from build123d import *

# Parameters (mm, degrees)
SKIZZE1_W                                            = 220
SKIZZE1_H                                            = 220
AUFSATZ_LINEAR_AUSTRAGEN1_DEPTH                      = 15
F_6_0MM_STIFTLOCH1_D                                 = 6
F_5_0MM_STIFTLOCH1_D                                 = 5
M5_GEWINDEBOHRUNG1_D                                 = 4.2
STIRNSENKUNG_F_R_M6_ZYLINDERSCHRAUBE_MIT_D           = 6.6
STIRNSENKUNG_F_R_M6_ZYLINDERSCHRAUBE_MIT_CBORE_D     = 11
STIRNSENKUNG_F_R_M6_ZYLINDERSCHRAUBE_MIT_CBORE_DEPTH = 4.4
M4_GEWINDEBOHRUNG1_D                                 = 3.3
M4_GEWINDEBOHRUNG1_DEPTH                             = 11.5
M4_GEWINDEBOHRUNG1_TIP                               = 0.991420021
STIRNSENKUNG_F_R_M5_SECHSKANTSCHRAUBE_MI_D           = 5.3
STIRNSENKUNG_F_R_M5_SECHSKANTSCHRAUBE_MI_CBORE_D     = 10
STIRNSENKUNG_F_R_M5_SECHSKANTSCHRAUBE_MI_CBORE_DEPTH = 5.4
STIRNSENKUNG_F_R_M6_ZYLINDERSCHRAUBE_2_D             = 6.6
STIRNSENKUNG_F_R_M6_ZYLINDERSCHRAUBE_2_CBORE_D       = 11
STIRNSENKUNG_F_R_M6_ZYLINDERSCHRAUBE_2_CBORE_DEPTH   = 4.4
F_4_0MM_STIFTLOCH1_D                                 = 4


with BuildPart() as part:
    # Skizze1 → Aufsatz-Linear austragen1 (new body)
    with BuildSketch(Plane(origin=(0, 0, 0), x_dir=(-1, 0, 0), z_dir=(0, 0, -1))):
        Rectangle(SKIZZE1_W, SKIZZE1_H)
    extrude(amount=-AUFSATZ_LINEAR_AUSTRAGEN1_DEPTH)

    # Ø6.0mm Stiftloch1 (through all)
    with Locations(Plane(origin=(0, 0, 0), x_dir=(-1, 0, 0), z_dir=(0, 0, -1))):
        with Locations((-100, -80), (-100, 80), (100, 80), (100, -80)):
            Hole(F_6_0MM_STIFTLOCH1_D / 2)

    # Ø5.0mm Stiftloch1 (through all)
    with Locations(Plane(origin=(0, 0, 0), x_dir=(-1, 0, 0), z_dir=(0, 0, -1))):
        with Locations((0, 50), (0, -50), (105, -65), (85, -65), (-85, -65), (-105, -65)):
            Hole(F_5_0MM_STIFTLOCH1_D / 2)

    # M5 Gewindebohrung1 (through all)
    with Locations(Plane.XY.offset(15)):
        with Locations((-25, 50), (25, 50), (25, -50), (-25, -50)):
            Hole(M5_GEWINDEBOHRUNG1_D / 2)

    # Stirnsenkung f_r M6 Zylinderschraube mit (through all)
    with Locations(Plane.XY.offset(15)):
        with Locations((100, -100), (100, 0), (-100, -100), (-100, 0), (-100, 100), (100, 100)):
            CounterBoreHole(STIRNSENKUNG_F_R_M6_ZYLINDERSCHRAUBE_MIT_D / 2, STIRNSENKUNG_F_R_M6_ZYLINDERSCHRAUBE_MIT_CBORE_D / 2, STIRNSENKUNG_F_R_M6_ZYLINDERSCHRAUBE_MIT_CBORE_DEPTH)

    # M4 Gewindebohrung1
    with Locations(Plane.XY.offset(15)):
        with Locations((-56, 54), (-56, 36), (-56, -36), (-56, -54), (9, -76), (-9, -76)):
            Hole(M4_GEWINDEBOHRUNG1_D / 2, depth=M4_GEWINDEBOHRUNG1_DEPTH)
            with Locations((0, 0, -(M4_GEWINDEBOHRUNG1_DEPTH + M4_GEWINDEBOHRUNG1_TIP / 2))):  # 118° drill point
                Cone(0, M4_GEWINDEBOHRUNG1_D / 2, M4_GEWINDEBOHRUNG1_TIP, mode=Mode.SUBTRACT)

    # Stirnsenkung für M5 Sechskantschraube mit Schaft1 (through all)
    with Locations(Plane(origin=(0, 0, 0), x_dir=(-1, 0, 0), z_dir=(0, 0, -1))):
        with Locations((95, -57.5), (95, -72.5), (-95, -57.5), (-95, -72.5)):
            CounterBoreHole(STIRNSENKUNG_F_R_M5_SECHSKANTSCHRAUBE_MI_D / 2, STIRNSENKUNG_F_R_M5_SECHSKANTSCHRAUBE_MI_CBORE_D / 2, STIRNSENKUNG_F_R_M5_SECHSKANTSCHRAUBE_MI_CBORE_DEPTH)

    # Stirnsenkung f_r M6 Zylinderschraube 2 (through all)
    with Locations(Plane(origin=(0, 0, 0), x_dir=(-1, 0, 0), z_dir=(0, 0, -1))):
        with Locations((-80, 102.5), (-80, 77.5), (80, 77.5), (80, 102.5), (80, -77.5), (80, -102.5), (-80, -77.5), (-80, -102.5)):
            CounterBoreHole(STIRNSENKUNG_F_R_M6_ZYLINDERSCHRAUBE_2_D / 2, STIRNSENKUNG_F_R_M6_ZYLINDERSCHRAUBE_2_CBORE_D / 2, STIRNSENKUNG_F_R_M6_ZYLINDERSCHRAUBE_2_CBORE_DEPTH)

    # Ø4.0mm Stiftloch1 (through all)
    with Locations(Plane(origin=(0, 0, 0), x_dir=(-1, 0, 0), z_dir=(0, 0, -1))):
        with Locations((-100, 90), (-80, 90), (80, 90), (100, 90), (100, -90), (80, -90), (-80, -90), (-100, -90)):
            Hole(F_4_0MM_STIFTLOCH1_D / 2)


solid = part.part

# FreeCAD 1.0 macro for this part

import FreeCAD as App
import Part
import Sketcher
from FreeCAD import Vector


def add_polygon(sketch, points):
    """Adds a closed chain of lines whose ends are joined by coincident constraints."""
    first, n = sketch.GeometryCount, len(points)
    for a, b in zip(points, points[1:] + points[:1]):
        sketch.addGeometry(Part.LineSegment(App.Vector(*a, 0), App.Vector(*b, 0)), False)
    for i in range(n):
        sketch.addConstraint(Sketcher.Constraint("Coincident", first + i, 2, first + (i + 1) % n, 1))

doc = App.newDocument("Part")
params = doc.addObject("Spreadsheet::Sheet", "Params")
for row, (alias, value) in enumerate([
    ("sketch1_width", "220 mm"),
    ("pad1_length", "15 mm"),
    ("sketch2_diameter", "6 mm"),
    ("hole_diameter", "6 mm"),
    ("sketch3_diameter", "5 mm"),
    ("hole2_diameter", "5 mm"),
    ("sketch4_diameter", "4.2 mm"),
    ("hole3_diameter", "4.2 mm"),
    ("sketch5_diameter", "6.6 mm"),
    ("hole4_diameter", "6.6 mm"),
    ("hole4_cbore_diameter", "11 mm"),
    ("hole4_cbore_depth", "4.4 mm"),
    ("sketch6_diameter", "3.3 mm"),
    ("hole5_diameter", "3.3 mm"),
    ("hole5_depth", "11.5 mm"),
    ("sketch7_diameter", "5.3 mm"),
    ("hole6_diameter", "5.3 mm"),
    ("hole6_cbore_diameter", "10 mm"),
    ("hole6_cbore_depth", "5.4 mm"),
    ("sketch8_diameter", "6.6 mm"),
    ("hole7_diameter", "6.6 mm"),
    ("hole7_cbore_diameter", "11 mm"),
    ("hole7_cbore_depth", "4.4 mm"),
    ("sketch9_diameter", "4 mm"),
    ("hole8_diameter", "4 mm"),
], start=1):
    params.set(f"A{row}", alias)
    params.set(f"B{row}", "=" + value)
    params.setAlias(f"B{row}", alias)

body = doc.addObject("PartDesign::Body", "Body")

# Sketch on XY plane
sketch1 = body.newObject("Sketcher::SketchObject", "Sketch")
sketch1.AttachmentSupport = (doc.getObject("XY_Plane"), [""])
sketch1.MapMode = "FlatFace"
add_polygon(sketch1, [(110, 110), (110, -110), (-110, -110), (-110, 110)])  # lines 0-3
sketch1.addConstraint(Sketcher.Constraint("Vertical", 0))
sketch1.addConstraint(Sketcher.Constraint("Horizontal", 1))
sketch1.addConstraint(Sketcher.Constraint("Vertical", 2))
sketch1.addConstraint(Sketcher.Constraint("Horizontal", 3))
sketch1.addConstraint(Sketcher.Constraint("Symmetric", 0, 2, 2, 2, -1, 1))
sketch1.addConstraint(Sketcher.Constraint("Equal", 3, 0))
sketch1.addConstraint(Sketcher.Constraint("DistanceX", 1, 2, 1, 1, 220.0))
sketch1.setExpression("Constraints[10]", "Params.sketch1_width")
pad1 = body.newObject("PartDesign::Pad", "Pad")
pad1.Profile = sketch1
pad1.setExpression("Length", "Params.pad1_length")

# Sketch on XY plane
sketch2 = body.newObject("Sketcher::SketchObject", "Sketch001")
sketch2.AttachmentSupport = (doc.getObject("XY_Plane"), [""])
sketch2.MapMode = "FlatFace"
sketch2.addGeometry(Part.Circle(Vector(100, -80, 0), Vector(0, 0, 1), 3), False)
sketch2.addGeometry(Part.Circle(Vector(100, 80, 0), Vector(0, 0, 1), 3), False)
sketch2.addGeometry(Part.Circle(Vector(-100, 80, 0), Vector(0, 0, 1), 3), False)
sketch2.addGeometry(Part.Circle(Vector(-100, -80, 0), Vector(0, 0, 1), 3), False)
sketch2.addConstraint(Sketcher.Constraint("Equal", 0, 1))
sketch2.addConstraint(Sketcher.Constraint("Equal", 1, 2))
sketch2.addConstraint(Sketcher.Constraint("Equal", 2, 3))
sketch2.addConstraint(Sketcher.Constraint("Symmetric", 0, 3, 2, 3, -1, 1))
sketch2.addConstraint(Sketcher.Constraint("Symmetric", 1, 3, 3, 3, -1, 1))
sketch2.addConstraint(Sketcher.Constraint("Symmetric", 1, 3, 2, 3, -2))
sketch2.addConstraint(Sketcher.Constraint("Diameter", 0, 6.0))
sketch2.addConstraint(Sketcher.Constraint("DistanceX", -1, 1, 0, 3, 100.0))
sketch2.addConstraint(Sketcher.Constraint("DistanceY", 0, 3, -1, 1, 80.0))
sketch2.setExpression("Constraints[6]", "Params.sketch2_diameter")
doc.recompute()
hole = body.newObject("PartDesign::Hole", "Hole")
hole.Profile = sketch2
hole.ThreadType = "None"
hole.setExpression("Diameter", "Params.hole_diameter")
hole.DepthType = "ThroughAll"
hole.Reversed = True

# Sketch on XY plane
sketch3 = body.newObject("Sketcher::SketchObject", "Sketch002")
sketch3.AttachmentSupport = (doc.getObject("XY_Plane"), [""])
sketch3.MapMode = "FlatFace"
sketch3.addGeometry(Part.Circle(Vector(0, 50, 0), Vector(0, 0, 1), 2.5), False)
sketch3.addGeometry(Part.Circle(Vector(0, -50, 0), Vector(0, 0, 1), 2.5), False)
sketch3.addGeometry(Part.Circle(Vector(-105, -65, 0), Vector(0, 0, 1), 2.5), False)
sketch3.addGeometry(Part.Circle(Vector(-85, -65, 0), Vector(0, 0, 1), 2.5), False)
sketch3.addGeometry(Part.Circle(Vector(85, -65, 0), Vector(0, 0, 1), 2.5), False)
sketch3.addGeometry(Part.Circle(Vector(105, -65, 0), Vector(0, 0, 1), 2.5), False)
sketch3.addConstraint(Sketcher.Constraint("Equal", 0, 1))
sketch3.addConstraint(Sketcher.Constraint("Equal", 1, 2))
sketch3.addConstraint(Sketcher.Constraint("Equal", 2, 3))
sketch3.addConstraint(Sketcher.Constraint("Equal", 3, 4))
sketch3.addConstraint(Sketcher.Constraint("Equal", 4, 5))
sketch3.addConstraint(Sketcher.Constraint("Symmetric", 0, 3, 1, 3, -1, 1))
sketch3.addConstraint(Sketcher.Constraint("Symmetric", 3, 3, 4, 3, -2))
sketch3.addConstraint(Sketcher.Constraint("Symmetric", 2, 3, 5, 3, -2))
sketch3.addConstraint(Sketcher.Constraint("PointOnObject", 0, 3, -2))
sketch3.addConstraint(Sketcher.Constraint("Horizontal", 2, 3, 3, 3))
sketch3.addConstraint(Sketcher.Constraint("Diameter", 0, 5.0))
sketch3.addConstraint(Sketcher.Constraint("DistanceY", -1, 1, 0, 3, 50.0))
sketch3.addConstraint(Sketcher.Constraint("DistanceX", 2, 3, -1, 1, 105.0))
sketch3.addConstraint(Sketcher.Constraint("DistanceY", 2, 3, -1, 1, 65.0))
sketch3.addConstraint(Sketcher.Constraint("DistanceX", 3, 3, -1, 1, 85.0))
sketch3.setExpression("Constraints[10]", "Params.sketch3_diameter")
doc.recompute()
hole2 = body.newObject("PartDesign::Hole", "Hole001")
hole2.Profile = sketch3
hole2.ThreadType = "None"
hole2.setExpression("Diameter", "Params.hole2_diameter")
hole2.DepthType = "ThroughAll"
hole2.Reversed = True

# Sketch on XY plane
sketch4 = body.newObject("Sketcher::SketchObject", "Sketch003")
sketch4.AttachmentSupport = (doc.getObject("XY_Plane"), [""])
sketch4.MapMode = "FlatFace"
sketch4.AttachmentOffset = App.Placement(Vector(0, 0, 15), App.Rotation())
sketch4.addGeometry(Part.Circle(Vector(-25, 50, 0), Vector(0, 0, 1), 2.1), False)
sketch4.addGeometry(Part.Circle(Vector(25, 50, 0), Vector(0, 0, 1), 2.1), False)
sketch4.addGeometry(Part.Circle(Vector(25, -50, 0), Vector(0, 0, 1), 2.1), False)
sketch4.addGeometry(Part.Circle(Vector(-25, -50, 0), Vector(0, 0, 1), 2.1), False)
sketch4.addConstraint(Sketcher.Constraint("Equal", 0, 1))
sketch4.addConstraint(Sketcher.Constraint("Equal", 1, 2))
sketch4.addConstraint(Sketcher.Constraint("Equal", 2, 3))
sketch4.addConstraint(Sketcher.Constraint("Symmetric", 0, 3, 2, 3, -1, 1))
sketch4.addConstraint(Sketcher.Constraint("Symmetric", 1, 3, 3, 3, -1, 1))
sketch4.addConstraint(Sketcher.Constraint("Symmetric", 0, 3, 1, 3, -2))
sketch4.addConstraint(Sketcher.Constraint("Diameter", 0, 4.2))
sketch4.addConstraint(Sketcher.Constraint("DistanceX", 0, 3, -1, 1, 25.0))
sketch4.addConstraint(Sketcher.Constraint("DistanceY", -1, 1, 0, 3, 50.0))
sketch4.setExpression("Constraints[6]", "Params.sketch4_diameter")
doc.recompute()
hole3 = body.newObject("PartDesign::Hole", "Hole002")
hole3.Profile = sketch4
hole3.ThreadType = "None"
hole3.setExpression("Diameter", "Params.hole3_diameter")
hole3.DepthType = "ThroughAll"

# Sketch on XY plane
sketch5 = body.newObject("Sketcher::SketchObject", "Sketch004")
sketch5.AttachmentSupport = (doc.getObject("XY_Plane"), [""])
sketch5.MapMode = "FlatFace"
sketch5.AttachmentOffset = App.Placement(Vector(0, 0, 15), App.Rotation())
sketch5.addGeometry(Part.Circle(Vector(100, -100, 0), Vector(0, 0, 1), 3.3), False)
sketch5.addGeometry(Part.Circle(Vector(100, 0, 0), Vector(0, 0, 1), 3.3), False)
sketch5.addGeometry(Part.Circle(Vector(-100, -100, 0), Vector(0, 0, 1), 3.3), False)
sketch5.addGeometry(Part.Circle(Vector(-100, 0, 0), Vector(0, 0, 1), 3.3), False)
sketch5.addGeometry(Part.Circle(Vector(-100, 100, 0), Vector(0, 0, 1), 3.3), False)
sketch5.addGeometry(Part.Circle(Vector(100, 100, 0), Vector(0, 0, 1), 3.3), False)
sketch5.addConstraint(Sketcher.Constraint("Equal", 0, 1))
sketch5.addConstraint(Sketcher.Constraint("Equal", 1, 2))
sketch5.addConstraint(Sketcher.Constraint("Equal", 2, 3))
sketch5.addConstraint(Sketcher.Constraint("Equal", 3, 4))
sketch5.addConstraint(Sketcher.Constraint("Equal", 4, 5))
sketch5.addConstraint(Sketcher.Constraint("Symmetric", 1, 3, 3, 3, -1, 1))
sketch5.addConstraint(Sketcher.Constraint("Symmetric", 0, 3, 4, 3, -1, 1))
sketch5.addConstraint(Sketcher.Constraint("Symmetric", 2, 3, 5, 3, -1, 1))
sketch5.addConstraint(Sketcher.Constraint("Symmetric", 0, 3, 2, 3, -2))
sketch5.addConstraint(Sketcher.Constraint("PointOnObject", 1, 3, -1))
sketch5.addConstraint(Sketcher.Constraint("Vertical", 0, 3, 1, 3))
sketch5.addConstraint(Sketcher.Constraint("Diameter", 0, 6.6))
sketch5.addConstraint(Sketcher.Constraint("DistanceX", -1, 1, 0, 3, 100.0))
sketch5.addConstraint(Sketcher.Constraint("DistanceY", 0, 3, -1, 1, 100.0))
sketch5.setExpression("Constraints[11]", "Params.sketch5_diameter")
doc.recompute()
hole4 = body.newObject("PartDesign::Hole", "Hole003")
hole4.Profile = sketch5
hole4.ThreadType = "None"
hole4.setExpression("Diameter", "Params.hole4_diameter")
hole4.DepthType = "ThroughAll"
hole4.HoleCutType = "Counterbore"
hole4.setExpression("HoleCutDiameter", "Params.hole4_cbore_diameter")
hole4.setExpression("HoleCutDepth", "Params.hole4_cbore_depth")

# Sketch on XY plane
sketch6 = body.newObject("Sketcher::SketchObject", "Sketch005")
sketch6.AttachmentSupport = (doc.getObject("XY_Plane"), [""])
sketch6.MapMode = "FlatFace"
sketch6.AttachmentOffset = App.Placement(Vector(0, 0, 15), App.Rotation())
sketch6.addGeometry(Part.Circle(Vector(-56, 54, 0), Vector(0, 0, 1), 1.6), False)
sketch6.addGeometry(Part.Circle(Vector(-56, 36, 0), Vector(0, 0, 1), 1.6), False)
sketch6.addGeometry(Part.Circle(Vector(-56, -36, 0), Vector(0, 0, 1), 1.6), False)
sketch6.addGeometry(Part.Circle(Vector(-56, -54, 0), Vector(0, 0, 1), 1.6), False)
sketch6.addGeometry(Part.Circle(Vector(9, -76, 0), Vector(0, 0, 1), 1.6), False)
sketch6.addGeometry(Part.Circle(Vector(-9, -76, 0), Vector(0, 0, 1), 1.6), False)
sketch6.addConstraint(Sketcher.Constraint("Equal", 0, 1))
sketch6.addConstraint(Sketcher.Constraint("Equal", 1, 2))
sketch6.addConstraint(Sketcher.Constraint("Equal", 2, 3))
sketch6.addConstraint(Sketcher.Constraint("Equal", 3, 4))
sketch6.addConstraint(Sketcher.Constraint("Equal", 4, 5))
sketch6.addConstraint(Sketcher.Constraint("Symmetric", 4, 3, 5, 3, -2))
sketch6.addConstraint(Sketcher.Constraint("Symmetric", 1, 3, 2, 3, -1))
sketch6.addConstraint(Sketcher.Constraint("Symmetric", 0, 3, 3, 3, -1))
sketch6.addConstraint(Sketcher.Constraint("Vertical", 0, 3, 1, 3))
sketch6.addConstraint(Sketcher.Constraint("Diameter", 0, 3.3))
sketch6.addConstraint(Sketcher.Constraint("DistanceX", 0, 3, -1, 1, 56.0))
sketch6.addConstraint(Sketcher.Constraint("DistanceY", -1, 1, 0, 3, 54.0))
sketch6.addConstraint(Sketcher.Constraint("DistanceY", -1, 1, 1, 3, 36.0))
sketch6.addConstraint(Sketcher.Constraint("DistanceX", -1, 1, 4, 3, 9.0))
sketch6.addConstraint(Sketcher.Constraint("DistanceY", 4, 3, -1, 1, 76.0))
sketch6.setExpression("Constraints[9]", "Params.sketch6_diameter")
doc.recompute()
hole5 = body.newObject("PartDesign::Hole", "Hole004")
hole5.Profile = sketch6
hole5.ThreadType = "None"
hole5.setExpression("Diameter", "Params.hole5_diameter")
hole5.DepthType = "Dimension"
hole5.setExpression("Depth", "Params.hole5_depth")
hole5.DrillPoint = "Angled"
hole5.DrillPointAngle = 118

# Sketch on XY plane
sketch7 = body.newObject("Sketcher::SketchObject", "Sketch006")
sketch7.AttachmentSupport = (doc.getObject("XY_Plane"), [""])
sketch7.MapMode = "FlatFace"
sketch7.addGeometry(Part.Circle(Vector(-95, -57.5, 0), Vector(0, 0, 1), 2.6), False)
sketch7.addGeometry(Part.Circle(Vector(-95, -72.5, 0), Vector(0, 0, 1), 2.6), False)
sketch7.addGeometry(Part.Circle(Vector(95, -57.5, 0), Vector(0, 0, 1), 2.6), False)
sketch7.addGeometry(Part.Circle(Vector(95, -72.5, 0), Vector(0, 0, 1), 2.6), False)
sketch7.addConstraint(Sketcher.Constraint("Equal", 0, 1))
sketch7.addConstraint(Sketcher.Constraint("Equal", 1, 2))
sketch7.addConstraint(Sketcher.Constraint("Equal", 2, 3))
sketch7.addConstraint(Sketcher.Constraint("Symmetric", 0, 3, 2, 3, -2))
sketch7.addConstraint(Sketcher.Constraint("Symmetric", 1, 3, 3, 3, -2))
sketch7.addConstraint(Sketcher.Constraint("Vertical", 0, 3, 1, 3))
sketch7.addConstraint(Sketcher.Constraint("Diameter", 0, 5.3))
sketch7.addConstraint(Sketcher.Constraint("DistanceX", 0, 3, -1, 1, 95.0))
sketch7.addConstraint(Sketcher.Constraint("DistanceY", 1, 3, 0, 3, 15.0))
sketch7.addConstraint(Sketcher.Constraint("DistanceY", 0, 3, -1, 1, 57.5))
sketch7.setExpression("Constraints[6]", "Params.sketch7_diameter")
doc.recompute()
hole6 = body.newObject("PartDesign::Hole", "Hole005")
hole6.Profile = sketch7
hole6.ThreadType = "None"
hole6.setExpression("Diameter", "Params.hole6_diameter")
hole6.DepthType = "ThroughAll"
hole6.HoleCutType = "Counterbore"
hole6.setExpression("HoleCutDiameter", "Params.hole6_cbore_diameter")
hole6.setExpression("HoleCutDepth", "Params.hole6_cbore_depth")
hole6.Reversed = True

# Sketch on XY plane
sketch8 = body.newObject("Sketcher::SketchObject", "Sketch007")
sketch8.AttachmentSupport = (doc.getObject("XY_Plane"), [""])
sketch8.MapMode = "FlatFace"
sketch8.addGeometry(Part.Circle(Vector(80, 102.5, 0), Vector(0, 0, 1), 3.3), False)
sketch8.addGeometry(Part.Circle(Vector(80, 77.5, 0), Vector(0, 0, 1), 3.3), False)
sketch8.addGeometry(Part.Circle(Vector(-80, 77.5, 0), Vector(0, 0, 1), 3.3), False)
sketch8.addGeometry(Part.Circle(Vector(-80, 102.5, 0), Vector(0, 0, 1), 3.3), False)
sketch8.addGeometry(Part.Circle(Vector(-80, -77.5, 0), Vector(0, 0, 1), 3.3), False)
sketch8.addGeometry(Part.Circle(Vector(-80, -102.5, 0), Vector(0, 0, 1), 3.3), False)
sketch8.addGeometry(Part.Circle(Vector(80, -77.5, 0), Vector(0, 0, 1), 3.3), False)
sketch8.addGeometry(Part.Circle(Vector(80, -102.5, 0), Vector(0, 0, 1), 3.3), False)
sketch8.addConstraint(Sketcher.Constraint("Equal", 0, 1))
sketch8.addConstraint(Sketcher.Constraint("Equal", 1, 2))
sketch8.addConstraint(Sketcher.Constraint("Equal", 2, 3))
sketch8.addConstraint(Sketcher.Constraint("Equal", 3, 4))
sketch8.addConstraint(Sketcher.Constraint("Equal", 4, 5))
sketch8.addConstraint(Sketcher.Constraint("Equal", 5, 6))
sketch8.addConstraint(Sketcher.Constraint("Equal", 6, 7))
sketch8.addConstraint(Sketcher.Constraint("Symmetric", 1, 3, 4, 3, -1, 1))
sketch8.addConstraint(Sketcher.Constraint("Symmetric", 0, 3, 5, 3, -1, 1))
sketch8.addConstraint(Sketcher.Constraint("Symmetric", 2, 3, 6, 3, -1, 1))
sketch8.addConstraint(Sketcher.Constraint("Symmetric", 3, 3, 7, 3, -1, 1))
sketch8.addConstraint(Sketcher.Constraint("Symmetric", 1, 3, 2, 3, -2))
sketch8.addConstraint(Sketcher.Constraint("Symmetric", 0, 3, 3, 3, -2))
sketch8.addConstraint(Sketcher.Constraint("Vertical", 0, 3, 1, 3))
sketch8.addConstraint(Sketcher.Constraint("Diameter", 0, 6.6))
sketch8.addConstraint(Sketcher.Constraint("DistanceX", -1, 1, 0, 3, 80.0))
sketch8.addConstraint(Sketcher.Constraint("DistanceY", 1, 3, 0, 3, 25.0))
sketch8.addConstraint(Sketcher.Constraint("DistanceY", 4, 3, 2, 3, 155.0))
sketch8.setExpression("Constraints[14]", "Params.sketch8_diameter")
doc.recompute()
hole7 = body.newObject("PartDesign::Hole", "Hole006")
hole7.Profile = sketch8
hole7.ThreadType = "None"
hole7.setExpression("Diameter", "Params.hole7_diameter")
hole7.DepthType = "ThroughAll"
hole7.HoleCutType = "Counterbore"
hole7.setExpression("HoleCutDiameter", "Params.hole7_cbore_diameter")
hole7.setExpression("HoleCutDepth", "Params.hole7_cbore_depth")
hole7.Reversed = True

# Sketch on XY plane
sketch9 = body.newObject("Sketcher::SketchObject", "Sketch008")
sketch9.AttachmentSupport = (doc.getObject("XY_Plane"), [""])
sketch9.MapMode = "FlatFace"
sketch9.addGeometry(Part.Circle(Vector(100, 90, 0), Vector(0, 0, 1), 2), False)
sketch9.addGeometry(Part.Circle(Vector(80, 90, 0), Vector(0, 0, 1), 2), False)
sketch9.addGeometry(Part.Circle(Vector(-80, 90, 0), Vector(0, 0, 1), 2), False)
sketch9.addGeometry(Part.Circle(Vector(-100, 90, 0), Vector(0, 0, 1), 2), False)
sketch9.addGeometry(Part.Circle(Vector(-100, -90, 0), Vector(0, 0, 1), 2), False)
sketch9.addGeometry(Part.Circle(Vector(-80, -90, 0), Vector(0, 0, 1), 2), False)
sketch9.addGeometry(Part.Circle(Vector(80, -90, 0), Vector(0, 0, 1), 2), False)
sketch9.addGeometry(Part.Circle(Vector(100, -90, 0), Vector(0, 0, 1), 2), False)
sketch9.addConstraint(Sketcher.Constraint("Equal", 0, 1))
sketch9.addConstraint(Sketcher.Constraint("Equal", 1, 2))
sketch9.addConstraint(Sketcher.Constraint("Equal", 2, 3))
sketch9.addConstraint(Sketcher.Constraint("Equal", 3, 4))
sketch9.addConstraint(Sketcher.Constraint("Equal", 4, 5))
sketch9.addConstraint(Sketcher.Constraint("Equal", 5, 6))
sketch9.addConstraint(Sketcher.Constraint("Equal", 6, 7))
sketch9.addConstraint(Sketcher.Constraint("Symmetric", 0, 3, 4, 3, -1, 1))
sketch9.addConstraint(Sketcher.Constraint("Symmetric", 1, 3, 5, 3, -1, 1))
sketch9.addConstraint(Sketcher.Constraint("Symmetric", 2, 3, 6, 3, -1, 1))
sketch9.addConstraint(Sketcher.Constraint("Symmetric", 3, 3, 7, 3, -1, 1))
sketch9.addConstraint(Sketcher.Constraint("Symmetric", 1, 3, 2, 3, -2))
sketch9.addConstraint(Sketcher.Constraint("Symmetric", 0, 3, 3, 3, -2))
sketch9.addConstraint(Sketcher.Constraint("Horizontal", 0, 3, 1, 3))
sketch9.addConstraint(Sketcher.Constraint("Diameter", 0, 4.0))
sketch9.addConstraint(Sketcher.Constraint("DistanceX", -1, 1, 0, 3, 100.0))
sketch9.addConstraint(Sketcher.Constraint("DistanceY", -1, 1, 0, 3, 90.0))
sketch9.addConstraint(Sketcher.Constraint("DistanceX", -1, 1, 1, 3, 80.0))
sketch9.setExpression("Constraints[14]", "Params.sketch9_diameter")
doc.recompute()
hole8 = body.newObject("PartDesign::Hole", "Hole007")
hole8.Profile = sketch9
hole8.ThreadType = "None"
hole8.setExpression("Diameter", "Params.hole8_diameter")
hole8.DepthType = "ThroughAll"
hole8.Reversed = True

doc.recompute()
